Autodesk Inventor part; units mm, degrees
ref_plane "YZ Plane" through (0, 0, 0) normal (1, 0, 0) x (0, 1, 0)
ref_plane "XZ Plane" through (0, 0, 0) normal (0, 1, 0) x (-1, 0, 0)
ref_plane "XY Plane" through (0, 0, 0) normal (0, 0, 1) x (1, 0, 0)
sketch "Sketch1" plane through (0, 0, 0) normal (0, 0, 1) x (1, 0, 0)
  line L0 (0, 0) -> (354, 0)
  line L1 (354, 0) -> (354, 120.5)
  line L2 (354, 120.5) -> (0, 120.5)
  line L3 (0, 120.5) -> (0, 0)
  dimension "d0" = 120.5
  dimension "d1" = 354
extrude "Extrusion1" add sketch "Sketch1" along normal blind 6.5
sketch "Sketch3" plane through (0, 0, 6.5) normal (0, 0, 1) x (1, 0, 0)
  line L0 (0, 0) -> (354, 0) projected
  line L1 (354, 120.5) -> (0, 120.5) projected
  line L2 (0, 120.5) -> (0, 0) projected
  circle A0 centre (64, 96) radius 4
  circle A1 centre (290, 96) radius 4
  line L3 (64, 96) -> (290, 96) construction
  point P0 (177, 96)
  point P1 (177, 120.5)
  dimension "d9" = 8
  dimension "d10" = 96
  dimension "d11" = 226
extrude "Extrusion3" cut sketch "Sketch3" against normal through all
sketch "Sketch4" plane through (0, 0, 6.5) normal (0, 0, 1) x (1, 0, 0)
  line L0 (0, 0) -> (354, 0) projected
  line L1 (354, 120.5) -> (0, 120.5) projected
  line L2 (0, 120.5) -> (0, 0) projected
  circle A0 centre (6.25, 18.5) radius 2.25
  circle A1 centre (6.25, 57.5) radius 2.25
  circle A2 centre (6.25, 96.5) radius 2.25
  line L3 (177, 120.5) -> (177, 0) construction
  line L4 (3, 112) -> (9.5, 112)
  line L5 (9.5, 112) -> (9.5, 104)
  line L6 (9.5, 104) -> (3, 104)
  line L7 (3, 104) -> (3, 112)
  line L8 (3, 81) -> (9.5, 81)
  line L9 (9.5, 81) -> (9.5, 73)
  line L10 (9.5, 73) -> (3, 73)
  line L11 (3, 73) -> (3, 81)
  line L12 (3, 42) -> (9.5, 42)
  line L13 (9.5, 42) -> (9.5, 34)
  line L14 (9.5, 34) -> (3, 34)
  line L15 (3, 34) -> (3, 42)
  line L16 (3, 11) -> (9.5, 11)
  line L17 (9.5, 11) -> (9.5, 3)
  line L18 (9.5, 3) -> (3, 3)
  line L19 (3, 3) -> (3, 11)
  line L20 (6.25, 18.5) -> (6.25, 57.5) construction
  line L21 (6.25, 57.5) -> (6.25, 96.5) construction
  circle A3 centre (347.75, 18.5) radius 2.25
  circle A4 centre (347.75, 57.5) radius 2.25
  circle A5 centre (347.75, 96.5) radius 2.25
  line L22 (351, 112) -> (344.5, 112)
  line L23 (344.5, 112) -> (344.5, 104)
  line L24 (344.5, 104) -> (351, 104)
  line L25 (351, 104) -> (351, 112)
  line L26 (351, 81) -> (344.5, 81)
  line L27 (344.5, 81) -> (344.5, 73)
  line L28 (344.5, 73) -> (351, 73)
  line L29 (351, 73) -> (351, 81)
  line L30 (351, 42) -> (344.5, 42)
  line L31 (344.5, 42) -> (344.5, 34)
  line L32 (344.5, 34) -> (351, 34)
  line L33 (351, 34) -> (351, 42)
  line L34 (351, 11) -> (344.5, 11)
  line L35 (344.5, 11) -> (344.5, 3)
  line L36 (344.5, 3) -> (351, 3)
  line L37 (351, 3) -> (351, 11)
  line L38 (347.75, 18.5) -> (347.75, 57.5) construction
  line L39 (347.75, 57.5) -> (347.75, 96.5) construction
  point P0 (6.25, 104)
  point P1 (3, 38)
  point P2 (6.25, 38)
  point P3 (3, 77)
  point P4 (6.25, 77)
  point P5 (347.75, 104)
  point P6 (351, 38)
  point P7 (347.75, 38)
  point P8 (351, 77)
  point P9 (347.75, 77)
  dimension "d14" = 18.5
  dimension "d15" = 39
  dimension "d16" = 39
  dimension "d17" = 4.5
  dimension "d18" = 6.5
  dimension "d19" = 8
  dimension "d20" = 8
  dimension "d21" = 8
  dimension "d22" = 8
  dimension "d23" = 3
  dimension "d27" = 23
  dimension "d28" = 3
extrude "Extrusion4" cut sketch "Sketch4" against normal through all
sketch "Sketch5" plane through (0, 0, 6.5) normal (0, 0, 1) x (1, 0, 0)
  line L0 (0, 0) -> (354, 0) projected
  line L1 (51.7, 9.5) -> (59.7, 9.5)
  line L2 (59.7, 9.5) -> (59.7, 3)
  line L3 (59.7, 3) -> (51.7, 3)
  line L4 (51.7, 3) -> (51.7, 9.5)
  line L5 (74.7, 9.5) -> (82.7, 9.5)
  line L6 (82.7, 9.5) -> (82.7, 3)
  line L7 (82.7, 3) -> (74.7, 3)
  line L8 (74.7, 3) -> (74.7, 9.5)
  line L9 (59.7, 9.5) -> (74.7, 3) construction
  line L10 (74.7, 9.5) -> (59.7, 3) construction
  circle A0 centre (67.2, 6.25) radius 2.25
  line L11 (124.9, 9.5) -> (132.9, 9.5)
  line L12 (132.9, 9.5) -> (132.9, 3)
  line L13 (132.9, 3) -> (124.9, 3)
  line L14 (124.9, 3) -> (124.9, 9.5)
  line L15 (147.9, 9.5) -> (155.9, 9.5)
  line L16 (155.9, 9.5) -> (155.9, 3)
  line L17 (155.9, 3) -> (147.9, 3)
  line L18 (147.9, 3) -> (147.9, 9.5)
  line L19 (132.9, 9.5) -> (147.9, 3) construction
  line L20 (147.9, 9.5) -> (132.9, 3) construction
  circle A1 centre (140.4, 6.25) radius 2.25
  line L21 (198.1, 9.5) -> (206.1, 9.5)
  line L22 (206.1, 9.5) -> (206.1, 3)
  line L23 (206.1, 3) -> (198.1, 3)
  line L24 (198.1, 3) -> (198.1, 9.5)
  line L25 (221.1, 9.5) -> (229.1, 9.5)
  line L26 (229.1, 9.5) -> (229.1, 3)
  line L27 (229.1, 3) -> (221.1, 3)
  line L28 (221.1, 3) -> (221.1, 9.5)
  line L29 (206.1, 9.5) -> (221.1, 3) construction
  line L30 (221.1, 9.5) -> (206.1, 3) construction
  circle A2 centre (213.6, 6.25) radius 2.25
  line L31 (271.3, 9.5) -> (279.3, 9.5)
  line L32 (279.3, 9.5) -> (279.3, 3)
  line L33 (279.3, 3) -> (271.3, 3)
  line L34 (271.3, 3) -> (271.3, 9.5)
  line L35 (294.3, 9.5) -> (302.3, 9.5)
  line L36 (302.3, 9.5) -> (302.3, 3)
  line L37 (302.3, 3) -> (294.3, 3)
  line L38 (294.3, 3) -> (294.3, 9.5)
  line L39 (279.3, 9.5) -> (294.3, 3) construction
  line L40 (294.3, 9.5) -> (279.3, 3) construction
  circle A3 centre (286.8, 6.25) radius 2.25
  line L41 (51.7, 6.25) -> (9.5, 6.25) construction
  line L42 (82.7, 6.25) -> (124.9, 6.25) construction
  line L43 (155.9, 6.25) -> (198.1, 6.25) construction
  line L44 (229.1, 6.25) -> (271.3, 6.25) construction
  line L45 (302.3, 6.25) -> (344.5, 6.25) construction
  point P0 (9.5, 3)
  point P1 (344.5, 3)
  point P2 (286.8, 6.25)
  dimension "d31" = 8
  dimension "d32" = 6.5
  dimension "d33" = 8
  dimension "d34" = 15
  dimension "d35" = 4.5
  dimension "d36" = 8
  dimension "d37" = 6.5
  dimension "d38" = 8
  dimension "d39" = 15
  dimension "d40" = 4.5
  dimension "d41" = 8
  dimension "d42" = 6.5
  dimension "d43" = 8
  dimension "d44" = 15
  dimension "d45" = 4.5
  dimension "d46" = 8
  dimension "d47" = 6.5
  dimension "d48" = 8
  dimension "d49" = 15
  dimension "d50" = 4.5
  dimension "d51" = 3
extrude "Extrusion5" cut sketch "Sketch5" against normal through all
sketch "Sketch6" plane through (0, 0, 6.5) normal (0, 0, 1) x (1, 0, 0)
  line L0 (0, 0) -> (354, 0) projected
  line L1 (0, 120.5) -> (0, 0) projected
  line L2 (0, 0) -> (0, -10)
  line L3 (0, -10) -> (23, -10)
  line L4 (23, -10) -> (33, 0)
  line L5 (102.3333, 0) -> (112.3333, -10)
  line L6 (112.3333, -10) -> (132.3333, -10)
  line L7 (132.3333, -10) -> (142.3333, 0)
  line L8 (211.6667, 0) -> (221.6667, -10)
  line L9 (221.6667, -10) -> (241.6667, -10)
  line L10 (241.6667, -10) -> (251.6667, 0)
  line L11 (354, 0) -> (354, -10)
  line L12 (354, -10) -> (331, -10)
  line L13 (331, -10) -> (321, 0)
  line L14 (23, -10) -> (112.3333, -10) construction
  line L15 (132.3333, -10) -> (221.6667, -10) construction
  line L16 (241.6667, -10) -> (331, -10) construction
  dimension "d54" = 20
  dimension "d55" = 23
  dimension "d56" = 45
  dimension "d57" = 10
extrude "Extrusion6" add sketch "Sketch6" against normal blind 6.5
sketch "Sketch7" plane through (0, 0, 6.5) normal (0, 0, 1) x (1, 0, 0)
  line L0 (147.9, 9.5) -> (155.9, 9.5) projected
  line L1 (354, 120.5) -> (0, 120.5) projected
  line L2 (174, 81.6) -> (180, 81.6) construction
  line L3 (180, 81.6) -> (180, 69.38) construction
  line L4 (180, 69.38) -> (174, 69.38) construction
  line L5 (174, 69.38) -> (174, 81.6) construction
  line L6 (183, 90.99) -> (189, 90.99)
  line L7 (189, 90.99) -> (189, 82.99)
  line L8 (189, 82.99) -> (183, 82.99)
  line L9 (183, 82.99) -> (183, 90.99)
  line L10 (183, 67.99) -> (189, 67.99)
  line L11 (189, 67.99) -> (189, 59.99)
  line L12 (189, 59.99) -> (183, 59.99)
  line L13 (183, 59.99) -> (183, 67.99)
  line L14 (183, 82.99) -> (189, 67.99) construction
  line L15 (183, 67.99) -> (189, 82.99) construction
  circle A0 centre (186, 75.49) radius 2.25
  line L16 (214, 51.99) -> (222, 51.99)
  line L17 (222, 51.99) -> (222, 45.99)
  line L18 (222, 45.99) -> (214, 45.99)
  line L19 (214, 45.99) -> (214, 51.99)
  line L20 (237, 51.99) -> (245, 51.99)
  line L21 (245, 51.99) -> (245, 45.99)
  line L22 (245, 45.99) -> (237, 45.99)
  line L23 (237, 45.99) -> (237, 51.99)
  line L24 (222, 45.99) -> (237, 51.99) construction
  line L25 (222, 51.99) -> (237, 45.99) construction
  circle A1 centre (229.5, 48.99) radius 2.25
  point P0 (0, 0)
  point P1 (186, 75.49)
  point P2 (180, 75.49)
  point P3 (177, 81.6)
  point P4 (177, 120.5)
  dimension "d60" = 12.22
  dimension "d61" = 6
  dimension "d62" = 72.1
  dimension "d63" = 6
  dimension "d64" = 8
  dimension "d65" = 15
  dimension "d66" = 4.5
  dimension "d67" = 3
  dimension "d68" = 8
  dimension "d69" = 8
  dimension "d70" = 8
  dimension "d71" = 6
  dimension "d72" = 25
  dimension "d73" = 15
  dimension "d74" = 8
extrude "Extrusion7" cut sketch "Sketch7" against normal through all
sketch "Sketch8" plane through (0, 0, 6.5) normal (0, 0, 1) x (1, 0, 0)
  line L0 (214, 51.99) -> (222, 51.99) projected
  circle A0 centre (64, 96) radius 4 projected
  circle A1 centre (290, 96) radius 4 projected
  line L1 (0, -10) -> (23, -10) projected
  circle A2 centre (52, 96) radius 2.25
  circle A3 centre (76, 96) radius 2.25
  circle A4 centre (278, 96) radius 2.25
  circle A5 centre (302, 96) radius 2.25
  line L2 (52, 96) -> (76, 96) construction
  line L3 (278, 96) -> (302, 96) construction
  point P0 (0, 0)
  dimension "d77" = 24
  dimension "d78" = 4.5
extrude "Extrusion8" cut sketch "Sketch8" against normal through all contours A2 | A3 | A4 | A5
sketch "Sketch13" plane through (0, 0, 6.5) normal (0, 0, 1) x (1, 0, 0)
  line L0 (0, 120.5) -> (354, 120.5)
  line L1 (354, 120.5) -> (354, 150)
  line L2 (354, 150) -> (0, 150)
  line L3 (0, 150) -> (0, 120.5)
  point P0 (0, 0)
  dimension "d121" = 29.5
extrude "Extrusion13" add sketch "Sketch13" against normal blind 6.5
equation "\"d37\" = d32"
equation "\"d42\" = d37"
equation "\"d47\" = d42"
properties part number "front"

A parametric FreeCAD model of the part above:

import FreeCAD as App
import Part
import Sketcher

V = App.Vector

doc = App.newDocument("Part")
body = doc.addObject("PartDesign::Body", "Body")

# Sketch on XY plane
sketch1 = doc.addObject("Sketcher::SketchObject", "Sketch")
body.addObject(sketch1)
sketch1.AttachmentSupport = (doc.XY_Plane, [""])
sketch1.MapMode = "FlatFace"
sketch1.addGeometry(Part.LineSegment(V(0, 120, 0), V(0, 0, 0)), False)
sketch1.addGeometry(Part.LineSegment(V(0, 0, 0), V(354, 0, 0)), False)
sketch1.addGeometry(Part.LineSegment(V(354, 0, 0), V(354, 120, 0)), False)
sketch1.addGeometry(Part.LineSegment(V(354, 120, 0), V(0, 120, 0)), False)
sketch1.addConstraint(Sketcher.Constraint("Coincident", 0, 2, 1, 1))
sketch1.addConstraint(Sketcher.Constraint("Coincident", 1, 2, 2, 1))
sketch1.addConstraint(Sketcher.Constraint("Coincident", 2, 2, 3, 1))
sketch1.addConstraint(Sketcher.Constraint("Coincident", 3, 2, 0, 1))
sketch1.addConstraint(Sketcher.Constraint("Vertical", 0))
sketch1.addConstraint(Sketcher.Constraint("Horizontal", 1))
sketch1.addConstraint(Sketcher.Constraint("Vertical", 2))
sketch1.addConstraint(Sketcher.Constraint("Horizontal", 3))
sketch1.addConstraint(Sketcher.Constraint("Coincident", 0, 2, -1, 1))
sketch1.addConstraint(Sketcher.Constraint("DistanceX", 1, 1, 1, 2, 354.0))
sketch1.addConstraint(Sketcher.Constraint("DistanceY", 0, 2, 0, 1, 120.5))
pad1 = doc.addObject("PartDesign::Pad", "Pad")
body.addObject(pad1)
pad1.Profile = sketch1
pad1.Length = 6.5

# Sketch on XY plane
sketch2 = doc.addObject("Sketcher::SketchObject", "Sketch001")
body.addObject(sketch2)
sketch2.AttachmentSupport = (doc.XY_Plane, [""])
sketch2.MapMode = "FlatFace"
sketch2.AttachmentOffset = App.Placement(V(0, 0, 6.5), App.Rotation())
sketch2.addGeometry(Part.Circle(V(64, 96, 0), V(0, 0, 1), 4), False)
sketch2.addGeometry(Part.Circle(V(290, 96, 0), V(0, 0, 1), 4), False)
sketch2.addConstraint(Sketcher.Constraint("Equal", 0, 1))
sketch2.addConstraint(Sketcher.Constraint("Horizontal", 0, 3, 1, 3))
sketch2.addConstraint(Sketcher.Constraint("Diameter", 0, 8.0))
sketch2.addConstraint(Sketcher.Constraint("DistanceY", -1, 1, 0, 3, 96.0))
sketch2.addConstraint(Sketcher.Constraint("DistanceX", 0, 3, 1, 3, 226.0))
sketch2.addConstraint(Sketcher.Constraint("DistanceX", -1, 1, 0, 3, 64.0))
pocket1 = doc.addObject("PartDesign::Pocket", "Pocket")
body.addObject(pocket1)
pocket1.Profile = sketch2
pocket1.Type = "ThroughAll"

# Sketch on XY plane
sketch3 = doc.addObject("Sketcher::SketchObject", "Sketch002")
body.addObject(sketch3)
sketch3.AttachmentSupport = (doc.XY_Plane, [""])
sketch3.MapMode = "FlatFace"
sketch3.AttachmentOffset = App.Placement(V(0, 0, 6.5), App.Rotation())
sketch3.addGeometry(Part.Circle(V(6.2, 18.5, 0), V(0, 0, 1), 2.2), False)
sketch3.addGeometry(Part.Circle(V(6.2, 57.5, 0), V(0, 0, 1), 2.2), False)
sketch3.addGeometry(Part.Circle(V(6.2, 96.5, 0), V(0, 0, 1), 2.2), False)
sketch3.addGeometry(Part.LineSegment(V(9.5, 112, 0), V(3, 112, 0)), False)
sketch3.addGeometry(Part.LineSegment(V(3, 112, 0), V(3, 104, 0)), False)
sketch3.addGeometry(Part.LineSegment(V(3, 104, 0), V(9.5, 104, 0)), False)
sketch3.addGeometry(Part.LineSegment(V(9.5, 104, 0), V(9.5, 112, 0)), False)
sketch3.addGeometry(Part.LineSegment(V(9.5, 81, 0), V(3, 81, 0)), False)
sketch3.addGeometry(Part.LineSegment(V(3, 81, 0), V(3, 73, 0)), False)
sketch3.addGeometry(Part.LineSegment(V(3, 73, 0), V(9.5, 73, 0)), False)
sketch3.addGeometry(Part.LineSegment(V(9.5, 73, 0), V(9.5, 81, 0)), False)
sketch3.addGeometry(Part.LineSegment(V(9.5, 42, 0), V(3, 42, 0)), False)
sketch3.addGeometry(Part.LineSegment(V(3, 42, 0), V(3, 34, 0)), False)
sketch3.addGeometry(Part.LineSegment(V(3, 34, 0), V(9.5, 34, 0)), False)
sketch3.addGeometry(Part.LineSegment(V(9.5, 34, 0), V(9.5, 42, 0)), False)
sketch3.addGeometry(Part.LineSegment(V(9.5, 11, 0), V(3, 11, 0)), False)
sketch3.addGeometry(Part.LineSegment(V(3, 11, 0), V(3, 3, 0)), False)
sketch3.addGeometry(Part.LineSegment(V(3, 3, 0), V(9.5, 3, 0)), False)
sketch3.addGeometry(Part.LineSegment(V(9.5, 3, 0), V(9.5, 11, 0)), False)
sketch3.addGeometry(Part.Circle(V(347.8, 18.5, 0), V(0, 0, 1), 2.2), False)
sketch3.addGeometry(Part.Circle(V(347.8, 57.5, 0), V(0, 0, 1), 2.2), False)
sketch3.addGeometry(Part.Circle(V(347.8, 96.5, 0), V(0, 0, 1), 2.2), False)
sketch3.addGeometry(Part.LineSegment(V(351, 104, 0), V(351, 112, 0)), False)
sketch3.addGeometry(Part.LineSegment(V(351, 112, 0), V(344.5, 112, 0)), False)
sketch3.addGeometry(Part.LineSegment(V(344.5, 112, 0), V(344.5, 104, 0)), False)
sketch3.addGeometry(Part.LineSegment(V(344.5, 104, 0), V(351, 104, 0)), False)
sketch3.addGeometry(Part.LineSegment(V(351, 73, 0), V(351, 81, 0)), False)
sketch3.addGeometry(Part.LineSegment(V(351, 81, 0), V(344.5, 81, 0)), False)
sketch3.addGeometry(Part.LineSegment(V(344.5, 81, 0), V(344.5, 73, 0)), False)
sketch3.addGeometry(Part.LineSegment(V(344.5, 73, 0), V(351, 73, 0)), False)
sketch3.addGeometry(Part.LineSegment(V(351, 34, 0), V(351, 42, 0)), False)
sketch3.addGeometry(Part.LineSegment(V(351, 42, 0), V(344.5, 42, 0)), False)
sketch3.addGeometry(Part.LineSegment(V(344.5, 42, 0), V(344.5, 34, 0)), False)
sketch3.addGeometry(Part.LineSegment(V(344.5, 34, 0), V(351, 34, 0)), False)
sketch3.addGeometry(Part.LineSegment(V(351, 3, 0), V(351, 11, 0)), False)
sketch3.addGeometry(Part.LineSegment(V(351, 11, 0), V(344.5, 11, 0)), False)
sketch3.addGeometry(Part.LineSegment(V(344.5, 11, 0), V(344.5, 3, 0)), False)
sketch3.addGeometry(Part.LineSegment(V(344.5, 3, 0), V(351, 3, 0)), False)
sketch3.addConstraint(Sketcher.Constraint("Coincident", 3, 2, 4, 1))
sketch3.addConstraint(Sketcher.Constraint("Coincident", 4, 2, 5, 1))
sketch3.addConstraint(Sketcher.Constraint("Coincident", 5, 2, 6, 1))
sketch3.addConstraint(Sketcher.Constraint("Coincident", 6, 2, 3, 1))
sketch3.addConstraint(Sketcher.Constraint("Coincident", 7, 2, 8, 1))
sketch3.addConstraint(Sketcher.Constraint("Coincident", 8, 2, 9, 1))
sketch3.addConstraint(Sketcher.Constraint("Coincident", 9, 2, 10, 1))
sketch3.addConstraint(Sketcher.Constraint("Coincident", 10, 2, 7, 1))
sketch3.addConstraint(Sketcher.Constraint("Coincident", 11, 2, 12, 1))
sketch3.addConstraint(Sketcher.Constraint("Coincident", 12, 2, 13, 1))
sketch3.addConstraint(Sketcher.Constraint("Coincident", 13, 2, 14, 1))
sketch3.addConstraint(Sketcher.Constraint("Coincident", 14, 2, 11, 1))
sketch3.addConstraint(Sketcher.Constraint("Coincident", 15, 2, 16, 1))
sketch3.addConstraint(Sketcher.Constraint("Coincident", 16, 2, 17, 1))
sketch3.addConstraint(Sketcher.Constraint("Coincident", 17, 2, 18, 1))
sketch3.addConstraint(Sketcher.Constraint("Coincident", 18, 2, 15, 1))
sketch3.addConstraint(Sketcher.Constraint("Coincident", 22, 2, 23, 1))
sketch3.addConstraint(Sketcher.Constraint("Coincident", 23, 2, 24, 1))
sketch3.addConstraint(Sketcher.Constraint("Coincident", 24, 2, 25, 1))
sketch3.addConstraint(Sketcher.Constraint("Coincident", 25, 2, 22, 1))
sketch3.addConstraint(Sketcher.Constraint("Coincident", 26, 2, 27, 1))
sketch3.addConstraint(Sketcher.Constraint("Coincident", 27, 2, 28, 1))
sketch3.addConstraint(Sketcher.Constraint("Coincident", 28, 2, 29, 1))
sketch3.addConstraint(Sketcher.Constraint("Coincident", 29, 2, 26, 1))
sketch3.addConstraint(Sketcher.Constraint("Coincident", 30, 2, 31, 1))
sketch3.addConstraint(Sketcher.Constraint("Coincident", 31, 2, 32, 1))
sketch3.addConstraint(Sketcher.Constraint("Coincident", 32, 2, 33, 1))
sketch3.addConstraint(Sketcher.Constraint("Coincident", 33, 2, 30, 1))
sketch3.addConstraint(Sketcher.Constraint("Coincident", 34, 2, 35, 1))
sketch3.addConstraint(Sketcher.Constraint("Coincident", 35, 2, 36, 1))
sketch3.addConstraint(Sketcher.Constraint("Coincident", 36, 2, 37, 1))
sketch3.addConstraint(Sketcher.Constraint("Coincident", 37, 2, 34, 1))
sketch3.addConstraint(Sketcher.Constraint("Horizontal", 3))
sketch3.addConstraint(Sketcher.Constraint("Vertical", 4))
sketch3.addConstraint(Sketcher.Constraint("Horizontal", 5))
sketch3.addConstraint(Sketcher.Constraint("Vertical", 6))
sketch3.addConstraint(Sketcher.Constraint("Horizontal", 7))
sketch3.addConstraint(Sketcher.Constraint("Vertical", 8))
sketch3.addConstraint(Sketcher.Constraint("Horizontal", 9))
sketch3.addConstraint(Sketcher.Constraint("Vertical", 10))
sketch3.addConstraint(Sketcher.Constraint("Horizontal", 11))
sketch3.addConstraint(Sketcher.Constraint("Vertical", 12))
sketch3.addConstraint(Sketcher.Constraint("Horizontal", 13))
sketch3.addConstraint(Sketcher.Constraint("Vertical", 14))
sketch3.addConstraint(Sketcher.Constraint("Horizontal", 15))
sketch3.addConstraint(Sketcher.Constraint("Vertical", 16))
sketch3.addConstraint(Sketcher.Constraint("Horizontal", 17))
sketch3.addConstraint(Sketcher.Constraint("Vertical", 18))
sketch3.addConstraint(Sketcher.Constraint("Vertical", 22))
sketch3.addConstraint(Sketcher.Constraint("Horizontal", 23))
sketch3.addConstraint(Sketcher.Constraint("Vertical", 24))
sketch3.addConstraint(Sketcher.Constraint("Horizontal", 25))
sketch3.addConstraint(Sketcher.Constraint("Vertical", 26))
sketch3.addConstraint(Sketcher.Constraint("Horizontal", 27))
sketch3.addConstraint(Sketcher.Constraint("Vertical", 28))
sketch3.addConstraint(Sketcher.Constraint("Horizontal", 29))
sketch3.addConstraint(Sketcher.Constraint("Vertical", 30))
sketch3.addConstraint(Sketcher.Constraint("Horizontal", 31))
sketch3.addConstraint(Sketcher.Constraint("Vertical", 32))
sketch3.addConstraint(Sketcher.Constraint("Horizontal", 33))
sketch3.addConstraint(Sketcher.Constraint("Vertical", 34))
sketch3.addConstraint(Sketcher.Constraint("Horizontal", 35))
sketch3.addConstraint(Sketcher.Constraint("Vertical", 36))
sketch3.addConstraint(Sketcher.Constraint("Horizontal", 37))
sketch3.addConstraint(Sketcher.Constraint("Equal", 0, 1))
sketch3.addConstraint(Sketcher.Constraint("Equal", 1, 2))
sketch3.addConstraint(Sketcher.Constraint("Equal", 2, 19))
sketch3.addConstraint(Sketcher.Constraint("Equal", 19, 20))
sketch3.addConstraint(Sketcher.Constraint("Equal", 20, 21))
sketch3.addConstraint(Sketcher.Constraint("Horizontal", 0, 3, 19, 3))
sketch3.addConstraint(Sketcher.Constraint("Horizontal", 1, 3, 20, 3))
sketch3.addConstraint(Sketcher.Constraint("Horizontal", 2, 3, 21, 3))
sketch3.addConstraint(Sketcher.Constraint("Horizontal", 6, 2, 22, 2))
sketch3.addConstraint(Sketcher.Constraint("Horizontal", 5, 2, 24, 2))
sketch3.addConstraint(Sketcher.Constraint("Horizontal", 10, 2, 26, 2))
sketch3.addConstraint(Sketcher.Constraint("Horizontal", 9, 2, 28, 2))
sketch3.addConstraint(Sketcher.Constraint("Horizontal", 14, 2, 30, 2))
sketch3.addConstraint(Sketcher.Constraint("Horizontal", 13, 2, 32, 2))
sketch3.addConstraint(Sketcher.Constraint("Horizontal", 18, 2, 34, 2))
sketch3.addConstraint(Sketcher.Constraint("Horizontal", 17, 2, 36, 2))
sketch3.addConstraint(Sketcher.Constraint("Vertical", 0, 3, 1, 3))
sketch3.addConstraint(Sketcher.Constraint("Vertical", 1, 3, 2, 3))
sketch3.addConstraint(Sketcher.Constraint("Vertical", 19, 3, 20, 3))
sketch3.addConstraint(Sketcher.Constraint("Vertical", 20, 3, 21, 3))
sketch3.addConstraint(Sketcher.Constraint("Vertical", 4, 2, 7, 2))
sketch3.addConstraint(Sketcher.Constraint("Vertical", 6, 2, 9, 2))
sketch3.addConstraint(Sketcher.Constraint("Vertical", 8, 2, 11, 2))
sketch3.addConstraint(Sketcher.Constraint("Vertical", 10, 2, 13, 2))
sketch3.addConstraint(Sketcher.Constraint("Vertical", 12, 2, 15, 2))
sketch3.addConstraint(Sketcher.Constraint("Vertical", 14, 2, 17, 2))
sketch3.addConstraint(Sketcher.Constraint("Vertical", 25, 2, 26, 2))
sketch3.addConstraint(Sketcher.Constraint("Vertical", 24, 2, 27, 2))
sketch3.addConstraint(Sketcher.Constraint("Vertical", 29, 2, 30, 2))
sketch3.addConstraint(Sketcher.Constraint("Vertical", 28, 2, 31, 2))
sketch3.addConstraint(Sketcher.Constraint("Vertical", 33, 2, 34, 2))
sketch3.addConstraint(Sketcher.Constraint("Vertical", 32, 2, 35, 2))
sketch3.addConstraint(Sketcher.Constraint("Equal", 17, 23))
sketch3.addConstraint(Sketcher.Constraint("Equal", 6, 8))
sketch3.addConstraint(Sketcher.Constraint("Equal", 10, 12))
sketch3.addConstraint(Sketcher.Constraint("Equal", 14, 16))
sketch3.addConstraint(Sketcher.Constraint("Diameter", 0, 4.5))
sketch3.addConstraint(Sketcher.Constraint("DistanceY", 4, 2, 4, 1, 8.0))
sketch3.addConstraint(Sketcher.Constraint("DistanceX", 3, 2, 3, 1, 6.5))
sketch3.addConstraint(Sketcher.Constraint("DistanceX", -1, 1, 3, 2, 3.0))
sketch3.addConstraint(Sketcher.Constraint("DistanceY", -1, 1, 16, 2, 3.0))
sketch3.addConstraint(Sketcher.Constraint("DistanceY", 0, 3, 1, 3, 39.0))
sketch3.addConstraint(Sketcher.Constraint("DistanceY", 1, 3, 2, 3, 39.0))
sketch3.addConstraint(Sketcher.Constraint("DistanceY", 7, 2, 4, 2, 23.0))
sketch3.addConstraint(Sketcher.Constraint("DistanceY", 11, 2, 7, 2, 39.0))
sketch3.addConstraint(Sketcher.Constraint("DistanceY", 15, 2, 12, 2, 23.0))
sketch3.addConstraint(Sketcher.Constraint("DistanceY", -1, 1, 0, 3, 18.5))
sketch3.addConstraint(Sketcher.Constraint("DistanceX", -1, 1, 22, 2, 351.0))
sketch3.addConstraint(Sketcher.Constraint("DistanceX", 0, 3, 19, 3, 341.5))
sketch3.addConstraint(Sketcher.Constraint("DistanceX", -1, 1, 0, 3, 6.25))
pocket2 = doc.addObject("PartDesign::Pocket", "Pocket001")
body.addObject(pocket2)
pocket2.Profile = sketch3
pocket2.Type = "ThroughAll"

# Sketch on XY plane
sketch4 = doc.addObject("Sketcher::SketchObject", "Sketch003")
body.addObject(sketch4)
sketch4.AttachmentSupport = (doc.XY_Plane, [""])
sketch4.MapMode = "FlatFace"
sketch4.AttachmentOffset = App.Placement(V(0, 0, 6.5), App.Rotation())
sketch4.addGeometry(Part.LineSegment(V(59.7, 9.5, 0), V(51.7, 9.5, 0)), False)
sketch4.addGeometry(Part.LineSegment(V(51.7, 9.5, 0), V(51.7, 3, 0)), False)
sketch4.addGeometry(Part.LineSegment(V(51.7, 3, 0), V(59.7, 3, 0)), False)
sketch4.addGeometry(Part.LineSegment(V(59.7, 3, 0), V(59.7, 9.5, 0)), False)
sketch4.addGeometry(Part.LineSegment(V(82.7, 9.5, 0), V(74.7, 9.5, 0)), False)
sketch4.addGeometry(Part.LineSegment(V(74.7, 9.5, 0), V(74.7, 3, 0)), False)
sketch4.addGeometry(Part.LineSegment(V(74.7, 3, 0), V(82.7, 3, 0)), False)
sketch4.addGeometry(Part.LineSegment(V(82.7, 3, 0), V(82.7, 9.5, 0)), False)
sketch4.addGeometry(Part.Circle(V(67.2, 6.2, 0), V(0, 0, 1), 2.2), False)
sketch4.addGeometry(Part.LineSegment(V(132.9, 9.5, 0), V(124.9, 9.5, 0)), False)
sketch4.addGeometry(Part.LineSegment(V(124.9, 9.5, 0), V(124.9, 3, 0)), False)
sketch4.addGeometry(Part.LineSegment(V(124.9, 3, 0), V(132.9, 3, 0)), False)
sketch4.addGeometry(Part.LineSegment(V(132.9, 3, 0), V(132.9, 9.5, 0)), False)
sketch4.addGeometry(Part.LineSegment(V(155.9, 9.5, 0), V(147.9, 9.5, 0)), False)
sketch4.addGeometry(Part.LineSegment(V(147.9, 9.5, 0), V(147.9, 3, 0)), False)
sketch4.addGeometry(Part.LineSegment(V(147.9, 3, 0), V(155.9, 3, 0)), False)
sketch4.addGeometry(Part.LineSegment(V(155.9, 3, 0), V(155.9, 9.5, 0)), False)
sketch4.addGeometry(Part.Circle(V(140.4, 6.2, 0), V(0, 0, 1), 2.2), False)
sketch4.addGeometry(Part.LineSegment(V(206.1, 9.5, 0), V(198.1, 9.5, 0)), False)
sketch4.addGeometry(Part.LineSegment(V(198.1, 9.5, 0), V(198.1, 3, 0)), False)
sketch4.addGeometry(Part.LineSegment(V(198.1, 3, 0), V(206.1, 3, 0)), False)
sketch4.addGeometry(Part.LineSegment(V(206.1, 3, 0), V(206.1, 9.5, 0)), False)
sketch4.addGeometry(Part.LineSegment(V(229.1, 9.5, 0), V(221.1, 9.5, 0)), False)
sketch4.addGeometry(Part.LineSegment(V(221.1, 9.5, 0), V(221.1, 3, 0)), False)
sketch4.addGeometry(Part.LineSegment(V(221.1, 3, 0), V(229.1, 3, 0)), False)
sketch4.addGeometry(Part.LineSegment(V(229.1, 3, 0), V(229.1, 9.5, 0)), False)
sketch4.addGeometry(Part.Circle(V(213.6, 6.2, 0), V(0, 0, 1), 2.2), False)
sketch4.addGeometry(Part.LineSegment(V(279.3, 9.5, 0), V(271.3, 9.5, 0)), False)
sketch4.addGeometry(Part.LineSegment(V(271.3, 9.5, 0), V(271.3, 3, 0)), False)
sketch4.addGeometry(Part.LineSegment(V(271.3, 3, 0), V(279.3, 3, 0)), False)
sketch4.addGeometry(Part.LineSegment(V(279.3, 3, 0), V(279.3, 9.5, 0)), False)
sketch4.addGeometry(Part.LineSegment(V(302.3, 9.5, 0), V(294.3, 9.5, 0)), False)
sketch4.addGeometry(Part.LineSegment(V(294.3, 9.5, 0), V(294.3, 3, 0)), False)
sketch4.addGeometry(Part.LineSegment(V(294.3, 3, 0), V(302.3, 3, 0)), False)
sketch4.addGeometry(Part.LineSegment(V(302.3, 3, 0), V(302.3, 9.5, 0)), False)
sketch4.addGeometry(Part.Circle(V(286.8, 6.2, 0), V(0, 0, 1), 2.2), False)
sketch4.addConstraint(Sketcher.Constraint("Coincident", 0, 2, 1, 1))
sketch4.addConstraint(Sketcher.Constraint("Coincident", 1, 2, 2, 1))
sketch4.addConstraint(Sketcher.Constraint("Coincident", 2, 2, 3, 1))
sketch4.addConstraint(Sketcher.Constraint("Coincident", 3, 2, 0, 1))
sketch4.addConstraint(Sketcher.Constraint("Coincident", 4, 2, 5, 1))
sketch4.addConstraint(Sketcher.Constraint("Coincident", 5, 2, 6, 1))
sketch4.addConstraint(Sketcher.Constraint("Coincident", 6, 2, 7, 1))
sketch4.addConstraint(Sketcher.Constraint("Coincident", 7, 2, 4, 1))
sketch4.addConstraint(Sketcher.Constraint("Coincident", 9, 2, 10, 1))
sketch4.addConstraint(Sketcher.Constraint("Coincident", 10, 2, 11, 1))
sketch4.addConstraint(Sketcher.Constraint("Coincident", 11, 2, 12, 1))
sketch4.addConstraint(Sketcher.Constraint("Coincident", 12, 2, 9, 1))
sketch4.addConstraint(Sketcher.Constraint("Coincident", 13, 2, 14, 1))
sketch4.addConstraint(Sketcher.Constraint("Coincident", 14, 2, 15, 1))
sketch4.addConstraint(Sketcher.Constraint("Coincident", 15, 2, 16, 1))
sketch4.addConstraint(Sketcher.Constraint("Coincident", 16, 2, 13, 1))
sketch4.addConstraint(Sketcher.Constraint("Coincident", 18, 2, 19, 1))
sketch4.addConstraint(Sketcher.Constraint("Coincident", 19, 2, 20, 1))
sketch4.addConstraint(Sketcher.Constraint("Coincident", 20, 2, 21, 1))
sketch4.addConstraint(Sketcher.Constraint("Coincident", 21, 2, 18, 1))
sketch4.addConstraint(Sketcher.Constraint("Coincident", 22, 2, 23, 1))
sketch4.addConstraint(Sketcher.Constraint("Coincident", 23, 2, 24, 1))
sketch4.addConstraint(Sketcher.Constraint("Coincident", 24, 2, 25, 1))
sketch4.addConstraint(Sketcher.Constraint("Coincident", 25, 2, 22, 1))
sketch4.addConstraint(Sketcher.Constraint("Coincident", 27, 2, 28, 1))
sketch4.addConstraint(Sketcher.Constraint("Coincident", 28, 2, 29, 1))
sketch4.addConstraint(Sketcher.Constraint("Coincident", 29, 2, 30, 1))
sketch4.addConstraint(Sketcher.Constraint("Coincident", 30, 2, 27, 1))
sketch4.addConstraint(Sketcher.Constraint("Coincident", 31, 2, 32, 1))
sketch4.addConstraint(Sketcher.Constraint("Coincident", 32, 2, 33, 1))
sketch4.addConstraint(Sketcher.Constraint("Coincident", 33, 2, 34, 1))
sketch4.addConstraint(Sketcher.Constraint("Coincident", 34, 2, 31, 1))
sketch4.addConstraint(Sketcher.Constraint("Horizontal", 0))
sketch4.addConstraint(Sketcher.Constraint("Vertical", 1))
sketch4.addConstraint(Sketcher.Constraint("Horizontal", 2))
sketch4.addConstraint(Sketcher.Constraint("Vertical", 3))
sketch4.addConstraint(Sketcher.Constraint("Horizontal", 4))
sketch4.addConstraint(Sketcher.Constraint("Vertical", 5))
sketch4.addConstraint(Sketcher.Constraint("Horizontal", 6))
sketch4.addConstraint(Sketcher.Constraint("Vertical", 7))
sketch4.addConstraint(Sketcher.Constraint("Horizontal", 9))
sketch4.addConstraint(Sketcher.Constraint("Vertical", 10))
sketch4.addConstraint(Sketcher.Constraint("Horizontal", 11))
sketch4.addConstraint(Sketcher.Constraint("Vertical", 12))
sketch4.addConstraint(Sketcher.Constraint("Horizontal", 13))
sketch4.addConstraint(Sketcher.Constraint("Vertical", 14))
sketch4.addConstraint(Sketcher.Constraint("Horizontal", 15))
sketch4.addConstraint(Sketcher.Constraint("Vertical", 16))
sketch4.addConstraint(Sketcher.Constraint("Horizontal", 18))
sketch4.addConstraint(Sketcher.Constraint("Vertical", 19))
sketch4.addConstraint(Sketcher.Constraint("Horizontal", 20))
sketch4.addConstraint(Sketcher.Constraint("Vertical", 21))
sketch4.addConstraint(Sketcher.Constraint("Horizontal", 22))
sketch4.addConstraint(Sketcher.Constraint("Vertical", 23))
sketch4.addConstraint(Sketcher.Constraint("Horizontal", 24))
sketch4.addConstraint(Sketcher.Constraint("Vertical", 25))
sketch4.addConstraint(Sketcher.Constraint("Horizontal", 27))
sketch4.addConstraint(Sketcher.Constraint("Vertical", 28))
sketch4.addConstraint(Sketcher.Constraint("Horizontal", 29))
sketch4.addConstraint(Sketcher.Constraint("Vertical", 30))
sketch4.addConstraint(Sketcher.Constraint("Horizontal", 31))
sketch4.addConstraint(Sketcher.Constraint("Vertical", 32))
sketch4.addConstraint(Sketcher.Constraint("Horizontal", 33))
sketch4.addConstraint(Sketcher.Constraint("Vertical", 34))
sketch4.addConstraint(Sketcher.Constraint("Equal", 8, 17))
sketch4.addConstraint(Sketcher.Constraint("Equal", 17, 26))
sketch4.addConstraint(Sketcher.Constraint("Equal", 26, 35))
sketch4.addConstraint(Sketcher.Constraint("Horizontal", 8, 3, 17, 3))
sketch4.addConstraint(Sketcher.Constraint("Horizontal", 17, 3, 26, 3))
sketch4.addConstraint(Sketcher.Constraint("Horizontal", 26, 3, 35, 3))
sketch4.addConstraint(Sketcher.Constraint("Horizontal", 3, 2, 4, 2))
sketch4.addConstraint(Sketcher.Constraint("Horizontal", 2, 2, 5, 2))
sketch4.addConstraint(Sketcher.Constraint("Horizontal", 7, 2, 9, 2))
sketch4.addConstraint(Sketcher.Constraint("Horizontal", 6, 2, 10, 2))
sketch4.addConstraint(Sketcher.Constraint("Horizontal", 12, 2, 13, 2))
sketch4.addConstraint(Sketcher.Constraint("Horizontal", 11, 2, 14, 2))
sketch4.addConstraint(Sketcher.Constraint("Horizontal", 16, 2, 18, 2))
sketch4.addConstraint(Sketcher.Constraint("Horizontal", 15, 2, 19, 2))
sketch4.addConstraint(Sketcher.Constraint("Horizontal", 21, 2, 22, 2))
sketch4.addConstraint(Sketcher.Constraint("Horizontal", 20, 2, 23, 2))
sketch4.addConstraint(Sketcher.Constraint("Horizontal", 25, 2, 27, 2))
sketch4.addConstraint(Sketcher.Constraint("Horizontal", 24, 2, 28, 2))
sketch4.addConstraint(Sketcher.Constraint("Horizontal", 30, 2, 31, 2))
sketch4.addConstraint(Sketcher.Constraint("Horizontal", 29, 2, 32, 2))
sketch4.addConstraint(Sketcher.Constraint("Equal", 2, 4))
sketch4.addConstraint(Sketcher.Constraint("Equal", 6, 9))
sketch4.addConstraint(Sketcher.Constraint("Equal", 11, 13))
sketch4.addConstraint(Sketcher.Constraint("Equal", 15, 18))
sketch4.addConstraint(Sketcher.Constraint("Equal", 20, 22))
sketch4.addConstraint(Sketcher.Constraint("Equal", 24, 27))
sketch4.addConstraint(Sketcher.Constraint("Equal", 29, 31))
sketch4.addConstraint(Sketcher.Constraint("Diameter", 8, 4.5))
sketch4.addConstraint(Sketcher.Constraint("DistanceX", 0, 2, 0, 1, 8.0))
sketch4.addConstraint(Sketcher.Constraint("DistanceY", 1, 2, 1, 1, 6.5))
sketch4.addConstraint(Sketcher.Constraint("DistanceY", -1, 1, 1, 2, 3.0))
sketch4.addConstraint(Sketcher.Constraint("DistanceX", 3, 2, 4, 2, 15.0))
sketch4.addConstraint(Sketcher.Constraint("DistanceX", 12, 2, 13, 2, 15.0))
sketch4.addConstraint(Sketcher.Constraint("DistanceX", 21, 2, 22, 2, 15.0))
sketch4.addConstraint(Sketcher.Constraint("DistanceX", 30, 2, 31, 2, 15.0))
sketch4.addConstraint(Sketcher.Constraint("DistanceX", -1, 1, 8, 3, 67.2))
sketch4.addConstraint(Sketcher.Constraint("DistanceX", -1, 1, 17, 3, 140.4))
sketch4.addConstraint(Sketcher.Constraint("DistanceX", -1, 1, 26, 3, 213.6))
sketch4.addConstraint(Sketcher.Constraint("DistanceX", -1, 1, 35, 3, 286.8))
sketch4.addConstraint(Sketcher.Constraint("DistanceX", -1, 1, 0, 2, 51.7))
sketch4.addConstraint(Sketcher.Constraint("DistanceX", -1, 1, 9, 2, 124.9))
sketch4.addConstraint(Sketcher.Constraint("DistanceX", -1, 1, 18, 2, 198.1))
sketch4.addConstraint(Sketcher.Constraint("DistanceX", -1, 1, 27, 2, 271.3))
sketch4.addConstraint(Sketcher.Constraint("DistanceY", -1, 1, 8, 3, 6.25))
pocket3 = doc.addObject("PartDesign::Pocket", "Pocket002")
body.addObject(pocket3)
pocket3.Profile = sketch4
pocket3.Type = "ThroughAll"

# Sketch on XY plane
sketch5 = doc.addObject("Sketcher::SketchObject", "Sketch004")
body.addObject(sketch5)
sketch5.AttachmentSupport = (doc.XY_Plane, [""])
sketch5.MapMode = "FlatFace"
sketch5.AttachmentOffset = App.Placement(V(0, 0, 6.5), App.Rotation())
sketch5.addGeometry(Part.LineSegment(V(354, 0, 0), V(321, 0, 0)), False)
sketch5.addGeometry(Part.LineSegment(V(321, 0, 0), V(331, -10, 0)), False)
sketch5.addGeometry(Part.LineSegment(V(331, -10, 0), V(354, -10, 0)), False)
sketch5.addGeometry(Part.LineSegment(V(354, -10, 0), V(354, 0, 0)), False)
sketch5.addGeometry(Part.LineSegment(V(252, 0, 0), V(212, 0, 0)), False)
sketch5.addGeometry(Part.LineSegment(V(212, 0, 0), V(222, -10, 0)), False)
sketch5.addGeometry(Part.LineSegment(V(222, -10, 0), V(242, -10, 0)), False)
sketch5.addGeometry(Part.LineSegment(V(242, -10, 0), V(252, 0, 0)), False)
sketch5.addGeometry(Part.LineSegment(V(142, 0, 0), V(102, 0, 0)), False)
sketch5.addGeometry(Part.LineSegment(V(102, 0, 0), V(112, -10, 0)), False)
sketch5.addGeometry(Part.LineSegment(V(112, -10, 0), V(132, -10, 0)), False)
sketch5.addGeometry(Part.LineSegment(V(132, -10, 0), V(142, 0, 0)), False)
sketch5.addGeometry(Part.LineSegment(V(33, 0, 0), V(0, 0, 0)), False)
sketch5.addGeometry(Part.LineSegment(V(0, 0, 0), V(0, -10, 0)), False)
sketch5.addGeometry(Part.LineSegment(V(0, -10, 0), V(23, -10, 0)), False)
sketch5.addGeometry(Part.LineSegment(V(23, -10, 0), V(33, 0, 0)), False)
sketch5.addConstraint(Sketcher.Constraint("Coincident", 0, 2, 1, 1))
sketch5.addConstraint(Sketcher.Constraint("Coincident", 1, 2, 2, 1))
sketch5.addConstraint(Sketcher.Constraint("Coincident", 2, 2, 3, 1))
sketch5.addConstraint(Sketcher.Constraint("Coincident", 3, 2, 0, 1))
sketch5.addConstraint(Sketcher.Constraint("Coincident", 4, 2, 5, 1))
sketch5.addConstraint(Sketcher.Constraint("Coincident", 5, 2, 6, 1))
sketch5.addConstraint(Sketcher.Constraint("Coincident", 6, 2, 7, 1))
sketch5.addConstraint(Sketcher.Constraint("Coincident", 7, 2, 4, 1))
sketch5.addConstraint(Sketcher.Constraint("Coincident", 8, 2, 9, 1))
sketch5.addConstraint(Sketcher.Constraint("Coincident", 9, 2, 10, 1))
sketch5.addConstraint(Sketcher.Constraint("Coincident", 10, 2, 11, 1))
sketch5.addConstraint(Sketcher.Constraint("Coincident", 11, 2, 8, 1))
sketch5.addConstraint(Sketcher.Constraint("Coincident", 12, 2, 13, 1))
sketch5.addConstraint(Sketcher.Constraint("Coincident", 13, 2, 14, 1))
sketch5.addConstraint(Sketcher.Constraint("Coincident", 14, 2, 15, 1))
sketch5.addConstraint(Sketcher.Constraint("Coincident", 15, 2, 12, 1))
sketch5.addConstraint(Sketcher.Constraint("Horizontal", 0))
sketch5.addConstraint(Sketcher.Constraint("Horizontal", 2))
sketch5.addConstraint(Sketcher.Constraint("Vertical", 3))
sketch5.addConstraint(Sketcher.Constraint("Horizontal", 4))
sketch5.addConstraint(Sketcher.Constraint("Horizontal", 6))
sketch5.addConstraint(Sketcher.Constraint("Horizontal", 8))
sketch5.addConstraint(Sketcher.Constraint("Horizontal", 10))
sketch5.addConstraint(Sketcher.Constraint("Horizontal", 12))
sketch5.addConstraint(Sketcher.Constraint("Vertical", 13))
sketch5.addConstraint(Sketcher.Constraint("Horizontal", 14))
sketch5.addConstraint(Sketcher.Constraint("Coincident", 12, 2, -1, 1))
sketch5.addConstraint(Sketcher.Constraint("PointOnObject", 0, 2, -1))
sketch5.addConstraint(Sketcher.Constraint("PointOnObject", 4, 2, -1))
sketch5.addConstraint(Sketcher.Constraint("PointOnObject", 8, 2, -1))
sketch5.addConstraint(Sketcher.Constraint("Parallel", 1, 5))
sketch5.addConstraint(Sketcher.Constraint("Perpendicular", 5, 7))
sketch5.addConstraint(Sketcher.Constraint("Perpendicular", 7, 9))
sketch5.addConstraint(Sketcher.Constraint("Perpendicular", 9, 11))
sketch5.addConstraint(Sketcher.Constraint("Parallel", 11, 15))
sketch5.addConstraint(Sketcher.Constraint("Horizontal", 2, 2, 5, 2))
sketch5.addConstraint(Sketcher.Constraint("Horizontal", 6, 2, 9, 2))
sketch5.addConstraint(Sketcher.Constraint("Horizontal", 10, 2, 13, 2))
sketch5.addConstraint(Sketcher.Constraint("Equal", 4, 8))
sketch5.addConstraint(Sketcher.Constraint("Equal", 0, 12))
sketch5.addConstraint(Sketcher.Constraint("Equal", 2, 14))
sketch5.addConstraint(Sketcher.Constraint("DistanceX", 2, 1, 2, 2, 23.0))
sketch5.addConstraint(Sketcher.Constraint("DistanceX", 6, 1, 6, 2, 20.0))
sketch5.addConstraint(Sketcher.Constraint("DistanceY", 3, 1, 3, 2, 10.0))
sketch5.addConstraint(Sketcher.Constraint("DistanceX", -1, 1, 0, 2, 321.0))
sketch5.addConstraint(Sketcher.Constraint("DistanceX", -1, 1, 4, 2, 211.6667))
sketch5.addConstraint(Sketcher.Constraint("DistanceX", -1, 1, 8, 2, 102.3333))
pad2 = doc.addObject("PartDesign::Pad", "Pad001")
body.addObject(pad2)
pad2.Profile = sketch5
pad2.Length = 6.5
pad2.Reversed = True

# Sketch on XY plane
sketch6 = doc.addObject("Sketcher::SketchObject", "Sketch005")
body.addObject(sketch6)
sketch6.AttachmentSupport = (doc.XY_Plane, [""])
sketch6.MapMode = "FlatFace"
sketch6.AttachmentOffset = App.Placement(V(0, 0, 6.5), App.Rotation())
sketch6.addGeometry(Part.LineSegment(V(189, 91, 0), V(183, 91, 0)), False)
sketch6.addGeometry(Part.LineSegment(V(183, 91, 0), V(183, 83, 0)), False)
sketch6.addGeometry(Part.LineSegment(V(183, 83, 0), V(189, 83, 0)), False)
sketch6.addGeometry(Part.LineSegment(V(189, 83, 0), V(189, 91, 0)), False)
sketch6.addGeometry(Part.LineSegment(V(189, 68, 0), V(183, 68, 0)), False)
sketch6.addGeometry(Part.LineSegment(V(183, 68, 0), V(183, 60, 0)), False)
sketch6.addGeometry(Part.LineSegment(V(183, 60, 0), V(189, 60, 0)), False)
sketch6.addGeometry(Part.LineSegment(V(189, 60, 0), V(189, 68, 0)), False)
sketch6.addGeometry(Part.Circle(V(186, 75.5, 0), V(0, 0, 1), 2.2), False)
sketch6.addGeometry(Part.LineSegment(V(222, 52, 0), V(214, 52, 0)), False)
sketch6.addGeometry(Part.LineSegment(V(214, 52, 0), V(214, 46, 0)), False)
sketch6.addGeometry(Part.LineSegment(V(214, 46, 0), V(222, 46, 0)), False)
sketch6.addGeometry(Part.LineSegment(V(222, 46, 0), V(222, 52, 0)), False)
sketch6.addGeometry(Part.LineSegment(V(245, 52, 0), V(237, 52, 0)), False)
sketch6.addGeometry(Part.LineSegment(V(237, 52, 0), V(237, 46, 0)), False)
sketch6.addGeometry(Part.LineSegment(V(237, 46, 0), V(245, 46, 0)), False)
sketch6.addGeometry(Part.LineSegment(V(245, 46, 0), V(245, 52, 0)), False)
sketch6.addGeometry(Part.Circle(V(229.5, 49, 0), V(0, 0, 1), 2.2), False)
sketch6.addConstraint(Sketcher.Constraint("Coincident", 0, 2, 1, 1))
sketch6.addConstraint(Sketcher.Constraint("Coincident", 1, 2, 2, 1))
sketch6.addConstraint(Sketcher.Constraint("Coincident", 2, 2, 3, 1))
sketch6.addConstraint(Sketcher.Constraint("Coincident", 3, 2, 0, 1))
sketch6.addConstraint(Sketcher.Constraint("Coincident", 4, 2, 5, 1))
sketch6.addConstraint(Sketcher.Constraint("Coincident", 5, 2, 6, 1))
sketch6.addConstraint(Sketcher.Constraint("Coincident", 6, 2, 7, 1))
sketch6.addConstraint(Sketcher.Constraint("Coincident", 7, 2, 4, 1))
sketch6.addConstraint(Sketcher.Constraint("Coincident", 9, 2, 10, 1))
sketch6.addConstraint(Sketcher.Constraint("Coincident", 10, 2, 11, 1))
sketch6.addConstraint(Sketcher.Constraint("Coincident", 11, 2, 12, 1))
sketch6.addConstraint(Sketcher.Constraint("Coincident", 12, 2, 9, 1))
sketch6.addConstraint(Sketcher.Constraint("Coincident", 13, 2, 14, 1))
sketch6.addConstraint(Sketcher.Constraint("Coincident", 14, 2, 15, 1))
sketch6.addConstraint(Sketcher.Constraint("Coincident", 15, 2, 16, 1))
sketch6.addConstraint(Sketcher.Constraint("Coincident", 16, 2, 13, 1))
sketch6.addConstraint(Sketcher.Constraint("Horizontal", 0))
sketch6.addConstraint(Sketcher.Constraint("Vertical", 1))
sketch6.addConstraint(Sketcher.Constraint("Horizontal", 2))
sketch6.addConstraint(Sketcher.Constraint("Vertical", 3))
sketch6.addConstraint(Sketcher.Constraint("Horizontal", 4))
sketch6.addConstraint(Sketcher.Constraint("Vertical", 5))
sketch6.addConstraint(Sketcher.Constraint("Horizontal", 6))
sketch6.addConstraint(Sketcher.Constraint("Vertical", 7))
sketch6.addConstraint(Sketcher.Constraint("Horizontal", 9))
sketch6.addConstraint(Sketcher.Constraint("Vertical", 10))
sketch6.addConstraint(Sketcher.Constraint("Horizontal", 11))
sketch6.addConstraint(Sketcher.Constraint("Vertical", 12))
sketch6.addConstraint(Sketcher.Constraint("Horizontal", 13))
sketch6.addConstraint(Sketcher.Constraint("Vertical", 14))
sketch6.addConstraint(Sketcher.Constraint("Horizontal", 15))
sketch6.addConstraint(Sketcher.Constraint("Vertical", 16))
sketch6.addConstraint(Sketcher.Constraint("Equal", 8, 17))
sketch6.addConstraint(Sketcher.Constraint("Horizontal", 12, 2, 13, 2))
sketch6.addConstraint(Sketcher.Constraint("Horizontal", 11, 2, 14, 2))
sketch6.addConstraint(Sketcher.Constraint("Vertical", 1, 2, 4, 2))
sketch6.addConstraint(Sketcher.Constraint("Vertical", 3, 2, 6, 2))
sketch6.addConstraint(Sketcher.Constraint("Equal", 11, 13))
sketch6.addConstraint(Sketcher.Constraint("Equal", 15, 1))
sketch6.addConstraint(Sketcher.Constraint("Equal", 3, 5))
sketch6.addConstraint(Sketcher.Constraint("Equal", 6, 10))
sketch6.addConstraint(Sketcher.Constraint("Diameter", 8, 4.5))
sketch6.addConstraint(Sketcher.Constraint("DistanceX", 0, 2, 0, 1, 6.0))
sketch6.addConstraint(Sketcher.Constraint("DistanceX", 9, 2, 9, 1, 8.0))
sketch6.addConstraint(Sketcher.Constraint("DistanceX", 0, 2, 8, 3, 3.0))
sketch6.addConstraint(Sketcher.Constraint("DistanceY", 4, 2, 1, 2, 15.0))
sketch6.addConstraint(Sketcher.Constraint("DistanceY", 17, 3, 9, 2, 3.0))
sketch6.addConstraint(Sketcher.Constraint("DistanceX", 6, 2, 9, 2, 25.0))
sketch6.addConstraint(Sketcher.Constraint("DistanceY", 9, 2, 6, 2, 8.0))
sketch6.addConstraint(Sketcher.Constraint("DistanceX", 12, 2, 13, 2, 15.0))
sketch6.addConstraint(Sketcher.Constraint("DistanceX", -1, 1, 8, 3, 186.0))
sketch6.addConstraint(Sketcher.Constraint("DistanceX", -1, 1, 17, 3, 229.5))
sketch6.addConstraint(Sketcher.Constraint("DistanceY", 17, 3, 8, 3, 26.5))
sketch6.addConstraint(Sketcher.Constraint("DistanceY", -1, 1, 8, 3, 75.49))
pocket4 = doc.addObject("PartDesign::Pocket", "Pocket003")
body.addObject(pocket4)
pocket4.Profile = sketch6
pocket4.Type = "ThroughAll"

# Sketch on XY plane
sketch7 = doc.addObject("Sketcher::SketchObject", "Sketch006")
body.addObject(sketch7)
sketch7.AttachmentSupport = (doc.XY_Plane, [""])
sketch7.MapMode = "FlatFace"
sketch7.AttachmentOffset = App.Placement(V(0, 0, 6.5), App.Rotation())
sketch7.addGeometry(Part.Circle(V(52, 96, 0), V(0, 0, 1), 2.2), False)
sketch7.addGeometry(Part.Circle(V(76, 96, 0), V(0, 0, 1), 2.2), False)
sketch7.addGeometry(Part.Circle(V(278, 96, 0), V(0, 0, 1), 2.2), False)
sketch7.addGeometry(Part.Circle(V(302, 96, 0), V(0, 0, 1), 2.2), False)
sketch7.addConstraint(Sketcher.Constraint("Equal", 0, 1))
sketch7.addConstraint(Sketcher.Constraint("Equal", 1, 2))
sketch7.addConstraint(Sketcher.Constraint("Equal", 2, 3))
sketch7.addConstraint(Sketcher.Constraint("Horizontal", 0, 3, 1, 3))
sketch7.addConstraint(Sketcher.Constraint("Horizontal", 1, 3, 2, 3))
sketch7.addConstraint(Sketcher.Constraint("Horizontal", 2, 3, 3, 3))
sketch7.addConstraint(Sketcher.Constraint("Diameter", 0, 4.5))
sketch7.addConstraint(Sketcher.Constraint("DistanceX", 0, 3, 1, 3, 24.0))
sketch7.addConstraint(Sketcher.Constraint("DistanceX", 2, 3, 3, 3, 24.0))
sketch7.addConstraint(Sketcher.Constraint("DistanceX", -1, 1, 0, 3, 52.0))
sketch7.addConstraint(Sketcher.Constraint("DistanceY", -1, 1, 0, 3, 96.0))
sketch7.addConstraint(Sketcher.Constraint("DistanceX", -1, 1, 2, 3, 278.0))
pocket5 = doc.addObject("PartDesign::Pocket", "Pocket004")
body.addObject(pocket5)
pocket5.Profile = sketch7
pocket5.Type = "ThroughAll"

# Sketch on XY plane
sketch8 = doc.addObject("Sketcher::SketchObject", "Sketch007")
body.addObject(sketch8)
sketch8.AttachmentSupport = (doc.XY_Plane, [""])
sketch8.MapMode = "FlatFace"
sketch8.AttachmentOffset = App.Placement(V(0, 0, 6.5), App.Rotation())
sketch8.addGeometry(Part.LineSegment(V(0, 150, 0), V(0, 120, 0)), False)
sketch8.addGeometry(Part.LineSegment(V(0, 120, 0), V(354, 120, 0)), False)
sketch8.addGeometry(Part.LineSegment(V(354, 120, 0), V(354, 150, 0)), False)
sketch8.addGeometry(Part.LineSegment(V(354, 150, 0), V(0, 150, 0)), False)
sketch8.addConstraint(Sketcher.Constraint("Coincident", 0, 2, 1, 1))
sketch8.addConstraint(Sketcher.Constraint("Coincident", 1, 2, 2, 1))
sketch8.addConstraint(Sketcher.Constraint("Coincident", 2, 2, 3, 1))
sketch8.addConstraint(Sketcher.Constraint("Coincident", 3, 2, 0, 1))
sketch8.addConstraint(Sketcher.Constraint("Vertical", 0))
sketch8.addConstraint(Sketcher.Constraint("Horizontal", 1))
sketch8.addConstraint(Sketcher.Constraint("Vertical", 2))
sketch8.addConstraint(Sketcher.Constraint("Horizontal", 3))
sketch8.addConstraint(Sketcher.Constraint("PointOnObject", 0, 2, -2))
sketch8.addConstraint(Sketcher.Constraint("DistanceY", 0, 2, 0, 1, 29.5))
sketch8.addConstraint(Sketcher.Constraint("DistanceX", 1, 1, 1, 2, 354.0))
sketch8.addConstraint(Sketcher.Constraint("DistanceY", -1, 1, 2, 2, 150.0))
pad3 = doc.addObject("PartDesign::Pad", "Pad002")
body.addObject(pad3)
pad3.Profile = sketch8
pad3.Length = 6.5
pad3.Reversed = True

doc.recompute()
